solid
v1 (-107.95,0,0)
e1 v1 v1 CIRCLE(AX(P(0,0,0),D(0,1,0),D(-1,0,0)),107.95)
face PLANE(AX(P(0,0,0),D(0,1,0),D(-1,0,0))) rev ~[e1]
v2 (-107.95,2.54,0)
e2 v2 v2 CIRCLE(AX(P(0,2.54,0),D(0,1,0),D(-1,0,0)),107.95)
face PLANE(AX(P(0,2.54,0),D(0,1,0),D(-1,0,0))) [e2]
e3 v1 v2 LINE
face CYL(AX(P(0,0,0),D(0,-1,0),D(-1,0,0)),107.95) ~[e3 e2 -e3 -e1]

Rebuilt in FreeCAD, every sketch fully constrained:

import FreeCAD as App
import Part
import Sketcher

V = App.Vector
Q = App.Units.Quantity

doc = App.newDocument("Part")
body = doc.addObject("PartDesign::Body", "Body")

sketch1 = body.newObject("Sketcher::SketchObject", "Sketch")
sketch1.AttachmentSupport = (doc.getObject("XZ_Plane"), [""])
sketch1.MapMode = "FlatFace"
sketch1.addGeometry(Part.Circle(V(0, 0, 0), V(0, 0, 1), 107.95), False)
sketch1.addConstraint([
    Sketcher.Constraint("Coincident", 0, 3, -1, 1),
    Sketcher.Constraint("Diameter", 0, Q("8.5 in")),
])
pad1 = body.newObject("PartDesign::Pad", "Pad")
pad1.Profile = sketch1
pad1.Length = Q("0.1 in")
pad1.Reversed = True

doc.recompute()
